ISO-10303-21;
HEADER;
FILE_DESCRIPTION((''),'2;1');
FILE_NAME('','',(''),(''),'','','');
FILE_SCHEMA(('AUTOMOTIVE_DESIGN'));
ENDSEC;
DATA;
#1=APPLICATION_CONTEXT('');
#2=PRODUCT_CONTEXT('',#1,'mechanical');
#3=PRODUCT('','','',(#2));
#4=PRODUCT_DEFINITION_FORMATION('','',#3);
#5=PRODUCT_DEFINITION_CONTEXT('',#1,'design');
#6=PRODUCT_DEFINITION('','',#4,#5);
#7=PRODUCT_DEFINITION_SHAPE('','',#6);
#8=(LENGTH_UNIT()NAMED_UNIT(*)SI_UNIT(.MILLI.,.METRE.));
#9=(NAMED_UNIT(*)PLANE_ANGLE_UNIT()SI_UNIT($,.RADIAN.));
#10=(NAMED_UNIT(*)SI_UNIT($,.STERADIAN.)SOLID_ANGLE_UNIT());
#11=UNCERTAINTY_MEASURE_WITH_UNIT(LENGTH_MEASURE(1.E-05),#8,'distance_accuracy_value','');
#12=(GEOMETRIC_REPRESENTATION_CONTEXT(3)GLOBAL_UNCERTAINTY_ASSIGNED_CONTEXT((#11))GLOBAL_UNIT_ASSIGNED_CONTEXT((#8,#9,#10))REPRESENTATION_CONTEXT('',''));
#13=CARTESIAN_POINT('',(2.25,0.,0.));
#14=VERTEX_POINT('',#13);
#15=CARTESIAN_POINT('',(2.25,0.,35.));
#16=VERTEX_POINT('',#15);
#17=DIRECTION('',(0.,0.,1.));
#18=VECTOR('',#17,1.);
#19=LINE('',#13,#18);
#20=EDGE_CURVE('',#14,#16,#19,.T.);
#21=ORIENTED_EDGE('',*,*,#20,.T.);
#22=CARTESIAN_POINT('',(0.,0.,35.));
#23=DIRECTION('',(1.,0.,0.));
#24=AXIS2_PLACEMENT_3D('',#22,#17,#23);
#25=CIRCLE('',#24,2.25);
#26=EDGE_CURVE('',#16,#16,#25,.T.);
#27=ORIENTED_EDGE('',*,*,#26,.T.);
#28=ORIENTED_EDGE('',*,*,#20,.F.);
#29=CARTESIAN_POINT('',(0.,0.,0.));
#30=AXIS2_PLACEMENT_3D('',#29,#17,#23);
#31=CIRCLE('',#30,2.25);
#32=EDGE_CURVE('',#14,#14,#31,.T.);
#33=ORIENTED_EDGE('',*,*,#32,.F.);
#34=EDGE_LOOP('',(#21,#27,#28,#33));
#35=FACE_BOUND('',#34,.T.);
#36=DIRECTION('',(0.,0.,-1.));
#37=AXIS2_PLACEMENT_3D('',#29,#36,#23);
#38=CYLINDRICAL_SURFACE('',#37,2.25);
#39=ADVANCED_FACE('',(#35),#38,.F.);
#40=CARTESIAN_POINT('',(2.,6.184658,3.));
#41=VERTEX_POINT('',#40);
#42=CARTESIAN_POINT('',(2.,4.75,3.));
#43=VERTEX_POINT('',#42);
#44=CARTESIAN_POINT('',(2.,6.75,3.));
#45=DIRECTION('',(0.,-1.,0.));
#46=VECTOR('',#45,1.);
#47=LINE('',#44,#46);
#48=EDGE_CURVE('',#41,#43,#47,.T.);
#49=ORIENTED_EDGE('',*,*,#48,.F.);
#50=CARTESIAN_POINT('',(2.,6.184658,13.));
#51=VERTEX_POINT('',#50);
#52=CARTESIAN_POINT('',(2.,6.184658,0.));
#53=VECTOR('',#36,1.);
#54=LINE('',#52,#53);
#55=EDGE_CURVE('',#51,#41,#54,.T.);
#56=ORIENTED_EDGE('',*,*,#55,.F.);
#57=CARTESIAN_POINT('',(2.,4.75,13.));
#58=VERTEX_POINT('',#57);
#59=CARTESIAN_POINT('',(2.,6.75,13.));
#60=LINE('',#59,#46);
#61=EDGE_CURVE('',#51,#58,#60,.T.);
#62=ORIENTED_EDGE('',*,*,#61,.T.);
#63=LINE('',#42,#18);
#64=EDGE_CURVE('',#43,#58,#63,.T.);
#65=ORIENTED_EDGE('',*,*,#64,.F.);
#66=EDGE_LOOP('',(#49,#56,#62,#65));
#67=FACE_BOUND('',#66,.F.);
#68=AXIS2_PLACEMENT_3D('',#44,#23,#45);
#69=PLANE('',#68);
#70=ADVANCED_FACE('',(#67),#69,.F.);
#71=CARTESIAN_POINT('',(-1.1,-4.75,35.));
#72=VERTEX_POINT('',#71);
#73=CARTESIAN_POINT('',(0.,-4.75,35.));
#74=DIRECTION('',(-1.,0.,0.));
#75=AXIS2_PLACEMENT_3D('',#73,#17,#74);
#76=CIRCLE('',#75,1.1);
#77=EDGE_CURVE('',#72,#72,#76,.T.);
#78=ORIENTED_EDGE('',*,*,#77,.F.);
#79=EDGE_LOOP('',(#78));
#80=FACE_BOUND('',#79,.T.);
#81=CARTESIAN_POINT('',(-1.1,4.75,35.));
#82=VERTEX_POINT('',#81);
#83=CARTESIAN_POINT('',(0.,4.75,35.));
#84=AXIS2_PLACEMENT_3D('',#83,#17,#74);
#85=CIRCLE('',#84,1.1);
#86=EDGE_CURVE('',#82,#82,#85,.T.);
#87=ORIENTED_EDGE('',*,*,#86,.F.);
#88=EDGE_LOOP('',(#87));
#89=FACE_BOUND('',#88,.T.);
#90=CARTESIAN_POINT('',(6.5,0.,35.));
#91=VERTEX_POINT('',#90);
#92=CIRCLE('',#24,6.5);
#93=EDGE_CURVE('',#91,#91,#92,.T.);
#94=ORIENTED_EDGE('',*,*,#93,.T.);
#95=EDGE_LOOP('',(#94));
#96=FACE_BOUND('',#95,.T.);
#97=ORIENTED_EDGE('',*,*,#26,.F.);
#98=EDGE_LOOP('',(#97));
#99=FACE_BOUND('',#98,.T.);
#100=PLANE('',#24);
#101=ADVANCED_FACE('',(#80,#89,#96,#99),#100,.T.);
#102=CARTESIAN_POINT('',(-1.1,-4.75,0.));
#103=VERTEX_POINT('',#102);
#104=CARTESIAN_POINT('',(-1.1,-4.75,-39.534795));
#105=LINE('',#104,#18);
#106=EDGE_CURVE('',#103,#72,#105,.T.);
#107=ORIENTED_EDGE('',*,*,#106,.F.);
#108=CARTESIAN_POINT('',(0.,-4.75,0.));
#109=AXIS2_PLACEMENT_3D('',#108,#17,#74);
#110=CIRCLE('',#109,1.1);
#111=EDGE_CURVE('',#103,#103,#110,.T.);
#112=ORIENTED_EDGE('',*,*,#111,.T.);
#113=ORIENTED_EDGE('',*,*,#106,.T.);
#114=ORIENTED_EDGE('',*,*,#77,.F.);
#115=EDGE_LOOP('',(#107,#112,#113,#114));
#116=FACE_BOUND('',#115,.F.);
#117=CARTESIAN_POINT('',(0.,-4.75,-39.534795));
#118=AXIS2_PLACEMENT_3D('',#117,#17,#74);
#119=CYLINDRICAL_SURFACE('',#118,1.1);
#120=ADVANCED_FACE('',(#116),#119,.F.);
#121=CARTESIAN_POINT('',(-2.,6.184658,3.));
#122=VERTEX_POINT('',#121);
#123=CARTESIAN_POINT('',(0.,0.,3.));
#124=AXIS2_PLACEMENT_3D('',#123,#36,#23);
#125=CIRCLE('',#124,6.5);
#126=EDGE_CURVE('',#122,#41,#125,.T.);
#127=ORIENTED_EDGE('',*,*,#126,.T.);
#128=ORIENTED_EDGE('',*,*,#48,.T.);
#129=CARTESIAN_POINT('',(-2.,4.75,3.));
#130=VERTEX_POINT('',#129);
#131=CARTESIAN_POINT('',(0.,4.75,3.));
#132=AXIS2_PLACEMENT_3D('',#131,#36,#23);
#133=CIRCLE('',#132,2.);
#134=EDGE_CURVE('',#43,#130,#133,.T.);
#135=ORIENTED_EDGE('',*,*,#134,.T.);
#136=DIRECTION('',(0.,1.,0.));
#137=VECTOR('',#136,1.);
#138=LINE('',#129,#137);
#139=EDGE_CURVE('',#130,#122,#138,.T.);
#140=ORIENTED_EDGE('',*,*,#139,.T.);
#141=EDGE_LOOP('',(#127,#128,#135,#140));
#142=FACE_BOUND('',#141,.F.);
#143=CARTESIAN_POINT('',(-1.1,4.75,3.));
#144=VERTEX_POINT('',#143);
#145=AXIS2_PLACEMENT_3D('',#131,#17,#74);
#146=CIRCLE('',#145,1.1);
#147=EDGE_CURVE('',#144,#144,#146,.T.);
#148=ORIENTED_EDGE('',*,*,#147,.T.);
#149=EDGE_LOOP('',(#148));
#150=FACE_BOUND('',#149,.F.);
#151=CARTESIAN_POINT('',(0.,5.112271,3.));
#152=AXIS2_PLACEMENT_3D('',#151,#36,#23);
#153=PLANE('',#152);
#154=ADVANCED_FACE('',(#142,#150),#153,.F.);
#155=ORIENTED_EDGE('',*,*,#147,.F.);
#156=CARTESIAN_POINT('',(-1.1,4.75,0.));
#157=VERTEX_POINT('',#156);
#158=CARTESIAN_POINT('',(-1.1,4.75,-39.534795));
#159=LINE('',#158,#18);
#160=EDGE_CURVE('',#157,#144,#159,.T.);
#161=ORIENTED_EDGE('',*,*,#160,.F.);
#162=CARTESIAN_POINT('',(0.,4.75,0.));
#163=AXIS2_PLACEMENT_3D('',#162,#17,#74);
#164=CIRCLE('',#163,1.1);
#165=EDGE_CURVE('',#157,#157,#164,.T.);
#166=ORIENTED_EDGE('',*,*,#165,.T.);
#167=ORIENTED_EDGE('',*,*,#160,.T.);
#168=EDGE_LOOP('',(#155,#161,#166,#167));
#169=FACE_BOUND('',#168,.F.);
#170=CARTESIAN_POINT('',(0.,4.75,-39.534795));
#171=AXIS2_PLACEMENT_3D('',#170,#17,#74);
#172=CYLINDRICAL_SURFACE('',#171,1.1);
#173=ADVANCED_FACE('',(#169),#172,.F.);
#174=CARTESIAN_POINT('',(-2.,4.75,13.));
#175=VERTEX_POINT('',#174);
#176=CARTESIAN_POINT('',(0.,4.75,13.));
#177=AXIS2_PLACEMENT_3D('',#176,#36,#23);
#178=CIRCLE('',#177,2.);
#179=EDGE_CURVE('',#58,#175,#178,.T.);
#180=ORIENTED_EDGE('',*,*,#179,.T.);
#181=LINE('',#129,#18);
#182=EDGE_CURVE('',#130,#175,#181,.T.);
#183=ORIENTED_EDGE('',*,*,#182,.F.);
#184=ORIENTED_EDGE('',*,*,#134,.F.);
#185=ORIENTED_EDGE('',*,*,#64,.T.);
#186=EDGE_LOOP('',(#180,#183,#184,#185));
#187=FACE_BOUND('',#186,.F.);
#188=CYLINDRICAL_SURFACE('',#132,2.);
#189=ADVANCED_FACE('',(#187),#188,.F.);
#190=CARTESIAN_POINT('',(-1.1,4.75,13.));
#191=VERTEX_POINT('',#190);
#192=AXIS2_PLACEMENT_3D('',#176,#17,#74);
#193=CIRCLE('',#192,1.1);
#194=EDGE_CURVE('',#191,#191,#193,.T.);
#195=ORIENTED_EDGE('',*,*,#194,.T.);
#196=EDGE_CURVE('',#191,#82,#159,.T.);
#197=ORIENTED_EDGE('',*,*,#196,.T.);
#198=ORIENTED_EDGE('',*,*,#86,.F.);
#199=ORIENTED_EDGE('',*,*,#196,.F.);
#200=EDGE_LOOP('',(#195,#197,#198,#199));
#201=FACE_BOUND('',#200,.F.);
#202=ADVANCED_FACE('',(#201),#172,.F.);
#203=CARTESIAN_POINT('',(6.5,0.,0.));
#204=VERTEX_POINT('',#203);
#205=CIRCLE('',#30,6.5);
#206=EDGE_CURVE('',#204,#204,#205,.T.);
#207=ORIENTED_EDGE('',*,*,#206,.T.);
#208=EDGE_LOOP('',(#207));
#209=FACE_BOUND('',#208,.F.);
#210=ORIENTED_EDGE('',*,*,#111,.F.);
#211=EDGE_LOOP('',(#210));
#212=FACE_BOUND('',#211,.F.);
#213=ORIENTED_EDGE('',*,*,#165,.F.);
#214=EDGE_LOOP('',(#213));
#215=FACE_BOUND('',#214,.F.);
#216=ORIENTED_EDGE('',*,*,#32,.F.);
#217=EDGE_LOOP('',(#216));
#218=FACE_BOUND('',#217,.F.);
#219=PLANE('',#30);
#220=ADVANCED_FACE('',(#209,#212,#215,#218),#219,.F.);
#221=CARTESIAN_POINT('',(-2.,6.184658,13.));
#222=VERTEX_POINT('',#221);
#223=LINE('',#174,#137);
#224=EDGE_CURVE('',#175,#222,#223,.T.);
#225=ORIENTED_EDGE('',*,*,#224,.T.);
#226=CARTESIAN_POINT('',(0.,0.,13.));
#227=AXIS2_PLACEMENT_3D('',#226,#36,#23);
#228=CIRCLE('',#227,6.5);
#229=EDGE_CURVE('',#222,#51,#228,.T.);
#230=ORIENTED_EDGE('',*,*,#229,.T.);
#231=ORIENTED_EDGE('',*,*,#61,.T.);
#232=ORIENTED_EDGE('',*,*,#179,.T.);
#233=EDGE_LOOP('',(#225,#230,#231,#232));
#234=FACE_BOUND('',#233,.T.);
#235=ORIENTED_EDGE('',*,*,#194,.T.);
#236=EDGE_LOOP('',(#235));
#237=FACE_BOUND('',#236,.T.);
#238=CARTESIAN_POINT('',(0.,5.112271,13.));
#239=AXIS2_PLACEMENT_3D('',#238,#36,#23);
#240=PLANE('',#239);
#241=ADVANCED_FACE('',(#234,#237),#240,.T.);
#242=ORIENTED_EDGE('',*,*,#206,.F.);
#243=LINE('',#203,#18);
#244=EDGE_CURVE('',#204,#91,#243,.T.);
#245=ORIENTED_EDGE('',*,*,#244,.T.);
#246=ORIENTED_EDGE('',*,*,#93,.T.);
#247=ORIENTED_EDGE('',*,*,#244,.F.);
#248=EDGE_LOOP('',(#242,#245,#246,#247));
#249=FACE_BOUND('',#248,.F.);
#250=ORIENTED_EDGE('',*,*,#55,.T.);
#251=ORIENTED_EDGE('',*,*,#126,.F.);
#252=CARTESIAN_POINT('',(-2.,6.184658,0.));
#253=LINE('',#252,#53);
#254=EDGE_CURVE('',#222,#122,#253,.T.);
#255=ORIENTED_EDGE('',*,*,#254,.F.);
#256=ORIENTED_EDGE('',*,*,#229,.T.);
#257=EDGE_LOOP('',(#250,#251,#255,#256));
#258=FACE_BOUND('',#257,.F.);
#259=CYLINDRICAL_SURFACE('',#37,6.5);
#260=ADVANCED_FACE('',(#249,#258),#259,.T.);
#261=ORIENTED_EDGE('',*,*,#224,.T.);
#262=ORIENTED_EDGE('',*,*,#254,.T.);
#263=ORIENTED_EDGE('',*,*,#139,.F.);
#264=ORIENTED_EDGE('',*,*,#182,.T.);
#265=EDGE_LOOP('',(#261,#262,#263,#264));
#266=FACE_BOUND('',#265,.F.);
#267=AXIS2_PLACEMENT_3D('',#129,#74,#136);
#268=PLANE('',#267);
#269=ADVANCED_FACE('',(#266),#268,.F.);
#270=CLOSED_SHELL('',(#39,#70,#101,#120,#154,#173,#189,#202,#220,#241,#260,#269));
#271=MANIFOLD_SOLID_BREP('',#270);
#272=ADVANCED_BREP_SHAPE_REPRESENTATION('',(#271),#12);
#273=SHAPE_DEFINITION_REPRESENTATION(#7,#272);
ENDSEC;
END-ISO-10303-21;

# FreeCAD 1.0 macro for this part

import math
import FreeCAD as App
import Part
import Sketcher
Q = App.Units.Quantity

doc = App.newDocument("Part")
params = doc.addObject("Spreadsheet::Sheet", "Params")
for row, (alias, value) in enumerate([
    ("sketch1_diameter", "13 mm"),
    ("sketch1_diameter2", "4.5 mm"),
    ("pad1_length", "35 mm"),
    ("sketch2_diameter", "2.2 mm"),
    ("hole_diameter", "2.2 mm"),
    ("sketch3_radius", "2 mm"),
    ("sketch3_height", "2 mm"),
    ("pocket1_length", "10 mm"),
], start=1):
    params.set(f"A{row}", alias)
    params.set(f"B{row}", "=" + value)
    params.setAlias(f"B{row}", alias)

body = doc.addObject("PartDesign::Body", "Body")

# Sketch on XY plane
sketch1 = body.newObject("Sketcher::SketchObject", "Sketch")
sketch1.AttachmentSupport = (doc.getObject("XY_Plane"), [""])
sketch1.MapMode = "FlatFace"
sketch1.addGeometry([
    Part.Circle(App.Vector(0, 0, 0), App.Vector(0, 0, 1), 6.5),
    Part.Circle(App.Vector(0, 0, 0), App.Vector(0, 0, 1), 2.2),
], False)
sketch1.addConstraint([
    Sketcher.Constraint("Coincident", 0, 3, -1, 1),
    Sketcher.Constraint("Coincident", 1, 3, -1, 1),
    Sketcher.Constraint("Diameter", 0, Q("13 mm")),
    Sketcher.Constraint("Diameter", 1, Q("4.5 mm")),
])
sketch1.setExpression("Constraints[2]", "Params.sketch1_diameter")
sketch1.setExpression("Constraints[3]", "Params.sketch1_diameter2")
pad1 = body.newObject("PartDesign::Pad", "Pad")
pad1.Profile = sketch1
pad1.setExpression("Length", "Params.pad1_length")

# Sketch on XY plane
sketch2 = body.newObject("Sketcher::SketchObject", "Sketch001")
sketch2.AttachmentSupport = (doc.getObject("XY_Plane"), [""])
sketch2.MapMode = "FlatFace"
sketch2.addGeometry([
    Part.Circle(App.Vector(0, 4.8, 0), App.Vector(0, 0, 1), 1.1),
    Part.Circle(App.Vector(0, -4.8, 0), App.Vector(0, 0, 1), 1.1),
], False)
sketch2.addConstraint([
    Sketcher.Constraint("Equal", 0, 1),
    Sketcher.Constraint("Symmetric", 0, 3, 1, 3, -1, 1),
    Sketcher.Constraint("PointOnObject", 0, 3, -2),
    Sketcher.Constraint("Diameter", 0, Q("2.2 mm")),
    Sketcher.Constraint("DistanceY", 1, 3, 0, 3, Q("9.5 mm")),
])
sketch2.setExpression("Constraints[3]", "Params.sketch2_diameter")
doc.recompute()
hole = body.newObject("PartDesign::Hole", "Hole")
hole.Profile = sketch2
hole.ThreadType = "None"
hole.setExpression("Diameter", "Params.hole_diameter")
hole.DepthType = "ThroughAll"
hole.Reversed = True

# Sketch on XY plane
sketch3 = body.newObject("Sketcher::SketchObject", "Sketch002")
sketch3.AttachmentSupport = (doc.getObject("XY_Plane"), [""])
sketch3.MapMode = "FlatFace"
sketch3.AttachmentOffset = App.Placement(App.Vector(0, 0, 3), App.Rotation())
sketch3.addGeometry([
    Part.LineSegment(App.Vector(2, 6.8, 0), App.Vector(2, 4.8, 0)),
    Part.ArcOfCircle(Part.Circle(App.Vector(0, 4.8, 0), App.Vector(0, 0, 1), 2), math.radians(180), math.radians(360)),
    Part.LineSegment(App.Vector(-2, 4.8, 0), App.Vector(-2, 6.8, 0)),
    Part.LineSegment(App.Vector(-2, 6.8, 0), App.Vector(2, 6.8, 0)),
], False)
sketch3.addConstraint([
    Sketcher.Constraint("Tangent", 0, 2, 1, 2),
    Sketcher.Constraint("Tangent", 1, 1, 2, 1),
    Sketcher.Constraint("Coincident", 2, 2, 3, 1),
    Sketcher.Constraint("Coincident", 3, 2, 0, 1),
    Sketcher.Constraint("Vertical", 0),
    Sketcher.Constraint("Vertical", 2),
    Sketcher.Constraint("Horizontal", 3),
    Sketcher.Constraint("PointOnObject", 1, 3, -2),
    Sketcher.Constraint("Radius", 1, Q("2 mm")),
    Sketcher.Constraint("DistanceY", 0, 2, 0, 1, Q("2 mm")),
    Sketcher.Constraint("DistanceY", -1, 1, 1, 3, Q("4.75 mm")),
])
sketch3.setExpression("Constraints[8]", "Params.sketch3_radius")
sketch3.setExpression("Constraints[9]", "Params.sketch3_height")
pocket1 = body.newObject("PartDesign::Pocket", "Pocket")
pocket1.Profile = sketch3
pocket1.setExpression("Length", "Params.pocket1_length")
pocket1.Reversed = True

doc.recompute()
